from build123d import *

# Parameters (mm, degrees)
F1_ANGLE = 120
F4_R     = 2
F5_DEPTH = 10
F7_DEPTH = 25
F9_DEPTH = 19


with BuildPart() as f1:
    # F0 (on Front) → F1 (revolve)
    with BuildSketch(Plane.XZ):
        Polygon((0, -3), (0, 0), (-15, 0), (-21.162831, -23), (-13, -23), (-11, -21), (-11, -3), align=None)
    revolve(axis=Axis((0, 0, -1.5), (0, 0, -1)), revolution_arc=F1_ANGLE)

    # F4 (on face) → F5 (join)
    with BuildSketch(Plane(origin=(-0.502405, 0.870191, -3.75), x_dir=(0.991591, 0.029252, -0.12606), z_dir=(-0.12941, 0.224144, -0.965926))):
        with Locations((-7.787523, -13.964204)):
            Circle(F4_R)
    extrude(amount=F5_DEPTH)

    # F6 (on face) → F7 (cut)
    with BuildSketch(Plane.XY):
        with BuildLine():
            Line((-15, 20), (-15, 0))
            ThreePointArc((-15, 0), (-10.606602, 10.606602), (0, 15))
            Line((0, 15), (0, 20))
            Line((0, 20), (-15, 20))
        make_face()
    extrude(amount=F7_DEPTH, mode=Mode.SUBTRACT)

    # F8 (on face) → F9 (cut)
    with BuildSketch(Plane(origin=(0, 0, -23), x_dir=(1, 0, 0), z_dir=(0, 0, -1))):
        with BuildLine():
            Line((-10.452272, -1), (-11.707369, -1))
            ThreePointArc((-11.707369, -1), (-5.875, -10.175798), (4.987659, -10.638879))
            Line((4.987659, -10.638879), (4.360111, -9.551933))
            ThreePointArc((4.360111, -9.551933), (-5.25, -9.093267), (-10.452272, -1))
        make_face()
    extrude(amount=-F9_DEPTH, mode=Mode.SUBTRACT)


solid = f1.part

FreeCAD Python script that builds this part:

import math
import FreeCAD as App
import Part
import Sketcher

V = App.Vector
Q = App.Units.Quantity

doc = App.newDocument("Part")
body = doc.addObject("PartDesign::Body", "Body")

# Sketch on XZ plane
sketch1 = doc.addObject("Sketcher::SketchObject", "Sketch")
body.addObject(sketch1)
sketch1.AttachmentSupport = (doc.XZ_Plane, [""])
sketch1.MapMode = "FlatFace"
sketch1.addGeometry([
    Part.LineSegment(V(0, -3, 0), V(0, 0, 0)),  # 0
    Part.LineSegment(V(0, 0, 0), V(-15, 0, 0)),  # 1
    Part.LineSegment(V(-15, 0, 0), V(-21.2, -23, 0)),  # 2
    Part.LineSegment(V(-21.2, -23, 0), V(-13, -23, 0)),  # 3
    Part.LineSegment(V(-13, -23, 0), V(-11, -21, 0)),  # 4
    Part.LineSegment(V(-11, -21, 0), V(-11, -3, 0)),  # 5
    Part.LineSegment(V(-11, -3, 0), V(0, -3, 0)),  # 6
], False)
sketch1.addConstraint([
    Sketcher.Constraint("Coincident", 0, 2, 1, 1),
    Sketcher.Constraint("Coincident", 1, 2, 2, 1),
    Sketcher.Constraint("Coincident", 2, 2, 3, 1),
    Sketcher.Constraint("Coincident", 3, 2, 4, 1),
    Sketcher.Constraint("Coincident", 4, 2, 5, 1),
    Sketcher.Constraint("Coincident", 5, 2, 6, 1),
    Sketcher.Constraint("Coincident", 6, 2, 0, 1),
    Sketcher.Constraint("Vertical", 0),
    Sketcher.Constraint("Horizontal", 1),
    Sketcher.Constraint("Horizontal", 3),
    Sketcher.Constraint("Vertical", 5),
    Sketcher.Constraint("Horizontal", 6),
    Sketcher.Constraint("Coincident", 0, 2, -1, 1),
    Sketcher.Constraint("DistanceX", 1, 2, 1, 1, 15.0),
    Sketcher.Constraint("DistanceX", 6, 1, 6, 2, 11.0),
    Sketcher.Constraint("DistanceY", 0, 1, 0, 2, 3.0),
    Sketcher.Constraint("DistanceY", 5, 1, 5, 2, 18.0),
    Sketcher.Constraint("Angle", 2, Q("-104.999999 deg")),
    Sketcher.Constraint("Angle", 4, Q("45 deg")),
    Sketcher.Constraint("DistanceY", 2, 2, -1, 1, 23.0),
])
revolution = doc.addObject("PartDesign::Revolution", "Revolution")
body.addObject(revolution)
revolution.Profile = sketch1
revolution.ReferenceAxis = (sketch1, ["V_Axis"])
revolution.Angle = 120
revolution.Reversed = True

# Sketch on an angled plane
sketch2 = doc.addObject("Sketcher::SketchObject", "Sketch001")
body.addObject(sketch2)
sketch2.Placement = App.Placement(V(-0.502405, 0.870191, -3.75), App.Rotation(V(0.991591176, 0.029252119, -0.126060513), V(-0.000000325, -0.974116937, -0.226044671), V(-0.129409966, 0.224143942, -0.96592575), "ZXY"))
sketch2.addGeometry(Part.Circle(V(-7.8, -14, 0), V(0, 0, 1), 2), False)
sketch2.addConstraint([
    Sketcher.Constraint("Diameter", 0, 4.0),
    Sketcher.Constraint("DistanceX", 0, 3, -1, 1, 7.787523),
    Sketcher.Constraint("DistanceY", 0, 3, -1, 1, 13.964204),
])
pad1 = doc.addObject("PartDesign::Pad", "Pad")
body.addObject(pad1)
pad1.Profile = sketch2
pad1.Length = 10

# Sketch on XY plane
sketch3 = doc.addObject("Sketcher::SketchObject", "Sketch002")
body.addObject(sketch3)
sketch3.AttachmentSupport = (doc.XY_Plane, [""])
sketch3.MapMode = "FlatFace"
sketch3.addGeometry([
    Part.LineSegment(V(-15, 20, 0), V(-15, 0, 0)),
    Part.ArcOfCircle(Part.Circle(V(0, 0, 0), V(0, 0, 1), 15), math.radians(90), math.radians(180)),
    Part.LineSegment(V(0, 15, 0), V(0, 20, 0)),
    Part.LineSegment(V(0, 20, 0), V(-15, 20, 0)),
], False)
sketch3.addConstraint([
    Sketcher.Constraint("Tangent", 0, 2, 1, 2),
    Sketcher.Constraint("Coincident", 1, 1, 2, 1),
    Sketcher.Constraint("Coincident", 2, 2, 3, 1),
    Sketcher.Constraint("Coincident", 3, 2, 0, 1),
    Sketcher.Constraint("Vertical", 0),
    Sketcher.Constraint("Vertical", 2),
    Sketcher.Constraint("Horizontal", 3),
    Sketcher.Constraint("Coincident", 1, 3, -1, 1),
    Sketcher.Constraint("PointOnObject", 1, 1, -2),
    Sketcher.Constraint("Radius", 1, 14.999999),
    Sketcher.Constraint("DistanceY", 0, 2, 0, 1, 20.0),
])
pocket1 = doc.addObject("PartDesign::Pocket", "Pocket")
body.addObject(pocket1)
pocket1.Profile = sketch3
pocket1.Length = 25
pocket1.Reversed = True

# Sketch on XY plane
sketch4 = doc.addObject("Sketcher::SketchObject", "Sketch003")
body.addObject(sketch4)
sketch4.AttachmentSupport = (doc.XY_Plane, [""])
sketch4.MapMode = "FlatFace"
sketch4.AttachmentOffset = App.Placement(V(0, 0, -23), App.Rotation())
sketch4.addGeometry([
    Part.LineSegment(V(-10.5, 1, 0), V(-11.7, 1, 0)),
    Part.ArcOfCircle(Part.Circle(V(0, 0, 0), V(0, 0, 1), 11.7), math.radians(65), math.radians(175)),
    Part.LineSegment(V(5, 10.6, 0), V(4.4, 9.6, 0)),
    Part.ArcOfCircle(Part.Circle(V(0, 0, 0), V(0, 0, 1), 10.5), math.radians(65), math.radians(175)),
], False)
sketch4.addConstraint([
    Sketcher.Constraint("Coincident", 0, 2, 1, 2),
    Sketcher.Constraint("Coincident", 1, 1, 2, 1),
    Sketcher.Constraint("Coincident", 2, 2, 3, 1),
    Sketcher.Constraint("Coincident", 3, 2, 0, 1),
    Sketcher.Constraint("Horizontal", 0),
    Sketcher.Constraint("Coincident", 1, 3, -1, 1),
    Sketcher.Constraint("Coincident", 3, 3, -1, 1),
    Sketcher.Constraint("Radius", 3, 10.499999),
    Sketcher.Constraint("Radius", 1, 11.749999),
    Sketcher.Constraint("DistanceY", -1, 1, 0, 2, 1.0),
    Sketcher.Constraint("DistanceX", -1, 1, 1, 1, 4.987659),
    Sketcher.Constraint("DistanceX", -1, 1, 2, 2, 4.360111),
])
pocket2 = doc.addObject("PartDesign::Pocket", "Pocket001")
body.addObject(pocket2)
pocket2.Profile = sketch4
pocket2.Length = 19
pocket2.Reversed = True

doc.recompute()
